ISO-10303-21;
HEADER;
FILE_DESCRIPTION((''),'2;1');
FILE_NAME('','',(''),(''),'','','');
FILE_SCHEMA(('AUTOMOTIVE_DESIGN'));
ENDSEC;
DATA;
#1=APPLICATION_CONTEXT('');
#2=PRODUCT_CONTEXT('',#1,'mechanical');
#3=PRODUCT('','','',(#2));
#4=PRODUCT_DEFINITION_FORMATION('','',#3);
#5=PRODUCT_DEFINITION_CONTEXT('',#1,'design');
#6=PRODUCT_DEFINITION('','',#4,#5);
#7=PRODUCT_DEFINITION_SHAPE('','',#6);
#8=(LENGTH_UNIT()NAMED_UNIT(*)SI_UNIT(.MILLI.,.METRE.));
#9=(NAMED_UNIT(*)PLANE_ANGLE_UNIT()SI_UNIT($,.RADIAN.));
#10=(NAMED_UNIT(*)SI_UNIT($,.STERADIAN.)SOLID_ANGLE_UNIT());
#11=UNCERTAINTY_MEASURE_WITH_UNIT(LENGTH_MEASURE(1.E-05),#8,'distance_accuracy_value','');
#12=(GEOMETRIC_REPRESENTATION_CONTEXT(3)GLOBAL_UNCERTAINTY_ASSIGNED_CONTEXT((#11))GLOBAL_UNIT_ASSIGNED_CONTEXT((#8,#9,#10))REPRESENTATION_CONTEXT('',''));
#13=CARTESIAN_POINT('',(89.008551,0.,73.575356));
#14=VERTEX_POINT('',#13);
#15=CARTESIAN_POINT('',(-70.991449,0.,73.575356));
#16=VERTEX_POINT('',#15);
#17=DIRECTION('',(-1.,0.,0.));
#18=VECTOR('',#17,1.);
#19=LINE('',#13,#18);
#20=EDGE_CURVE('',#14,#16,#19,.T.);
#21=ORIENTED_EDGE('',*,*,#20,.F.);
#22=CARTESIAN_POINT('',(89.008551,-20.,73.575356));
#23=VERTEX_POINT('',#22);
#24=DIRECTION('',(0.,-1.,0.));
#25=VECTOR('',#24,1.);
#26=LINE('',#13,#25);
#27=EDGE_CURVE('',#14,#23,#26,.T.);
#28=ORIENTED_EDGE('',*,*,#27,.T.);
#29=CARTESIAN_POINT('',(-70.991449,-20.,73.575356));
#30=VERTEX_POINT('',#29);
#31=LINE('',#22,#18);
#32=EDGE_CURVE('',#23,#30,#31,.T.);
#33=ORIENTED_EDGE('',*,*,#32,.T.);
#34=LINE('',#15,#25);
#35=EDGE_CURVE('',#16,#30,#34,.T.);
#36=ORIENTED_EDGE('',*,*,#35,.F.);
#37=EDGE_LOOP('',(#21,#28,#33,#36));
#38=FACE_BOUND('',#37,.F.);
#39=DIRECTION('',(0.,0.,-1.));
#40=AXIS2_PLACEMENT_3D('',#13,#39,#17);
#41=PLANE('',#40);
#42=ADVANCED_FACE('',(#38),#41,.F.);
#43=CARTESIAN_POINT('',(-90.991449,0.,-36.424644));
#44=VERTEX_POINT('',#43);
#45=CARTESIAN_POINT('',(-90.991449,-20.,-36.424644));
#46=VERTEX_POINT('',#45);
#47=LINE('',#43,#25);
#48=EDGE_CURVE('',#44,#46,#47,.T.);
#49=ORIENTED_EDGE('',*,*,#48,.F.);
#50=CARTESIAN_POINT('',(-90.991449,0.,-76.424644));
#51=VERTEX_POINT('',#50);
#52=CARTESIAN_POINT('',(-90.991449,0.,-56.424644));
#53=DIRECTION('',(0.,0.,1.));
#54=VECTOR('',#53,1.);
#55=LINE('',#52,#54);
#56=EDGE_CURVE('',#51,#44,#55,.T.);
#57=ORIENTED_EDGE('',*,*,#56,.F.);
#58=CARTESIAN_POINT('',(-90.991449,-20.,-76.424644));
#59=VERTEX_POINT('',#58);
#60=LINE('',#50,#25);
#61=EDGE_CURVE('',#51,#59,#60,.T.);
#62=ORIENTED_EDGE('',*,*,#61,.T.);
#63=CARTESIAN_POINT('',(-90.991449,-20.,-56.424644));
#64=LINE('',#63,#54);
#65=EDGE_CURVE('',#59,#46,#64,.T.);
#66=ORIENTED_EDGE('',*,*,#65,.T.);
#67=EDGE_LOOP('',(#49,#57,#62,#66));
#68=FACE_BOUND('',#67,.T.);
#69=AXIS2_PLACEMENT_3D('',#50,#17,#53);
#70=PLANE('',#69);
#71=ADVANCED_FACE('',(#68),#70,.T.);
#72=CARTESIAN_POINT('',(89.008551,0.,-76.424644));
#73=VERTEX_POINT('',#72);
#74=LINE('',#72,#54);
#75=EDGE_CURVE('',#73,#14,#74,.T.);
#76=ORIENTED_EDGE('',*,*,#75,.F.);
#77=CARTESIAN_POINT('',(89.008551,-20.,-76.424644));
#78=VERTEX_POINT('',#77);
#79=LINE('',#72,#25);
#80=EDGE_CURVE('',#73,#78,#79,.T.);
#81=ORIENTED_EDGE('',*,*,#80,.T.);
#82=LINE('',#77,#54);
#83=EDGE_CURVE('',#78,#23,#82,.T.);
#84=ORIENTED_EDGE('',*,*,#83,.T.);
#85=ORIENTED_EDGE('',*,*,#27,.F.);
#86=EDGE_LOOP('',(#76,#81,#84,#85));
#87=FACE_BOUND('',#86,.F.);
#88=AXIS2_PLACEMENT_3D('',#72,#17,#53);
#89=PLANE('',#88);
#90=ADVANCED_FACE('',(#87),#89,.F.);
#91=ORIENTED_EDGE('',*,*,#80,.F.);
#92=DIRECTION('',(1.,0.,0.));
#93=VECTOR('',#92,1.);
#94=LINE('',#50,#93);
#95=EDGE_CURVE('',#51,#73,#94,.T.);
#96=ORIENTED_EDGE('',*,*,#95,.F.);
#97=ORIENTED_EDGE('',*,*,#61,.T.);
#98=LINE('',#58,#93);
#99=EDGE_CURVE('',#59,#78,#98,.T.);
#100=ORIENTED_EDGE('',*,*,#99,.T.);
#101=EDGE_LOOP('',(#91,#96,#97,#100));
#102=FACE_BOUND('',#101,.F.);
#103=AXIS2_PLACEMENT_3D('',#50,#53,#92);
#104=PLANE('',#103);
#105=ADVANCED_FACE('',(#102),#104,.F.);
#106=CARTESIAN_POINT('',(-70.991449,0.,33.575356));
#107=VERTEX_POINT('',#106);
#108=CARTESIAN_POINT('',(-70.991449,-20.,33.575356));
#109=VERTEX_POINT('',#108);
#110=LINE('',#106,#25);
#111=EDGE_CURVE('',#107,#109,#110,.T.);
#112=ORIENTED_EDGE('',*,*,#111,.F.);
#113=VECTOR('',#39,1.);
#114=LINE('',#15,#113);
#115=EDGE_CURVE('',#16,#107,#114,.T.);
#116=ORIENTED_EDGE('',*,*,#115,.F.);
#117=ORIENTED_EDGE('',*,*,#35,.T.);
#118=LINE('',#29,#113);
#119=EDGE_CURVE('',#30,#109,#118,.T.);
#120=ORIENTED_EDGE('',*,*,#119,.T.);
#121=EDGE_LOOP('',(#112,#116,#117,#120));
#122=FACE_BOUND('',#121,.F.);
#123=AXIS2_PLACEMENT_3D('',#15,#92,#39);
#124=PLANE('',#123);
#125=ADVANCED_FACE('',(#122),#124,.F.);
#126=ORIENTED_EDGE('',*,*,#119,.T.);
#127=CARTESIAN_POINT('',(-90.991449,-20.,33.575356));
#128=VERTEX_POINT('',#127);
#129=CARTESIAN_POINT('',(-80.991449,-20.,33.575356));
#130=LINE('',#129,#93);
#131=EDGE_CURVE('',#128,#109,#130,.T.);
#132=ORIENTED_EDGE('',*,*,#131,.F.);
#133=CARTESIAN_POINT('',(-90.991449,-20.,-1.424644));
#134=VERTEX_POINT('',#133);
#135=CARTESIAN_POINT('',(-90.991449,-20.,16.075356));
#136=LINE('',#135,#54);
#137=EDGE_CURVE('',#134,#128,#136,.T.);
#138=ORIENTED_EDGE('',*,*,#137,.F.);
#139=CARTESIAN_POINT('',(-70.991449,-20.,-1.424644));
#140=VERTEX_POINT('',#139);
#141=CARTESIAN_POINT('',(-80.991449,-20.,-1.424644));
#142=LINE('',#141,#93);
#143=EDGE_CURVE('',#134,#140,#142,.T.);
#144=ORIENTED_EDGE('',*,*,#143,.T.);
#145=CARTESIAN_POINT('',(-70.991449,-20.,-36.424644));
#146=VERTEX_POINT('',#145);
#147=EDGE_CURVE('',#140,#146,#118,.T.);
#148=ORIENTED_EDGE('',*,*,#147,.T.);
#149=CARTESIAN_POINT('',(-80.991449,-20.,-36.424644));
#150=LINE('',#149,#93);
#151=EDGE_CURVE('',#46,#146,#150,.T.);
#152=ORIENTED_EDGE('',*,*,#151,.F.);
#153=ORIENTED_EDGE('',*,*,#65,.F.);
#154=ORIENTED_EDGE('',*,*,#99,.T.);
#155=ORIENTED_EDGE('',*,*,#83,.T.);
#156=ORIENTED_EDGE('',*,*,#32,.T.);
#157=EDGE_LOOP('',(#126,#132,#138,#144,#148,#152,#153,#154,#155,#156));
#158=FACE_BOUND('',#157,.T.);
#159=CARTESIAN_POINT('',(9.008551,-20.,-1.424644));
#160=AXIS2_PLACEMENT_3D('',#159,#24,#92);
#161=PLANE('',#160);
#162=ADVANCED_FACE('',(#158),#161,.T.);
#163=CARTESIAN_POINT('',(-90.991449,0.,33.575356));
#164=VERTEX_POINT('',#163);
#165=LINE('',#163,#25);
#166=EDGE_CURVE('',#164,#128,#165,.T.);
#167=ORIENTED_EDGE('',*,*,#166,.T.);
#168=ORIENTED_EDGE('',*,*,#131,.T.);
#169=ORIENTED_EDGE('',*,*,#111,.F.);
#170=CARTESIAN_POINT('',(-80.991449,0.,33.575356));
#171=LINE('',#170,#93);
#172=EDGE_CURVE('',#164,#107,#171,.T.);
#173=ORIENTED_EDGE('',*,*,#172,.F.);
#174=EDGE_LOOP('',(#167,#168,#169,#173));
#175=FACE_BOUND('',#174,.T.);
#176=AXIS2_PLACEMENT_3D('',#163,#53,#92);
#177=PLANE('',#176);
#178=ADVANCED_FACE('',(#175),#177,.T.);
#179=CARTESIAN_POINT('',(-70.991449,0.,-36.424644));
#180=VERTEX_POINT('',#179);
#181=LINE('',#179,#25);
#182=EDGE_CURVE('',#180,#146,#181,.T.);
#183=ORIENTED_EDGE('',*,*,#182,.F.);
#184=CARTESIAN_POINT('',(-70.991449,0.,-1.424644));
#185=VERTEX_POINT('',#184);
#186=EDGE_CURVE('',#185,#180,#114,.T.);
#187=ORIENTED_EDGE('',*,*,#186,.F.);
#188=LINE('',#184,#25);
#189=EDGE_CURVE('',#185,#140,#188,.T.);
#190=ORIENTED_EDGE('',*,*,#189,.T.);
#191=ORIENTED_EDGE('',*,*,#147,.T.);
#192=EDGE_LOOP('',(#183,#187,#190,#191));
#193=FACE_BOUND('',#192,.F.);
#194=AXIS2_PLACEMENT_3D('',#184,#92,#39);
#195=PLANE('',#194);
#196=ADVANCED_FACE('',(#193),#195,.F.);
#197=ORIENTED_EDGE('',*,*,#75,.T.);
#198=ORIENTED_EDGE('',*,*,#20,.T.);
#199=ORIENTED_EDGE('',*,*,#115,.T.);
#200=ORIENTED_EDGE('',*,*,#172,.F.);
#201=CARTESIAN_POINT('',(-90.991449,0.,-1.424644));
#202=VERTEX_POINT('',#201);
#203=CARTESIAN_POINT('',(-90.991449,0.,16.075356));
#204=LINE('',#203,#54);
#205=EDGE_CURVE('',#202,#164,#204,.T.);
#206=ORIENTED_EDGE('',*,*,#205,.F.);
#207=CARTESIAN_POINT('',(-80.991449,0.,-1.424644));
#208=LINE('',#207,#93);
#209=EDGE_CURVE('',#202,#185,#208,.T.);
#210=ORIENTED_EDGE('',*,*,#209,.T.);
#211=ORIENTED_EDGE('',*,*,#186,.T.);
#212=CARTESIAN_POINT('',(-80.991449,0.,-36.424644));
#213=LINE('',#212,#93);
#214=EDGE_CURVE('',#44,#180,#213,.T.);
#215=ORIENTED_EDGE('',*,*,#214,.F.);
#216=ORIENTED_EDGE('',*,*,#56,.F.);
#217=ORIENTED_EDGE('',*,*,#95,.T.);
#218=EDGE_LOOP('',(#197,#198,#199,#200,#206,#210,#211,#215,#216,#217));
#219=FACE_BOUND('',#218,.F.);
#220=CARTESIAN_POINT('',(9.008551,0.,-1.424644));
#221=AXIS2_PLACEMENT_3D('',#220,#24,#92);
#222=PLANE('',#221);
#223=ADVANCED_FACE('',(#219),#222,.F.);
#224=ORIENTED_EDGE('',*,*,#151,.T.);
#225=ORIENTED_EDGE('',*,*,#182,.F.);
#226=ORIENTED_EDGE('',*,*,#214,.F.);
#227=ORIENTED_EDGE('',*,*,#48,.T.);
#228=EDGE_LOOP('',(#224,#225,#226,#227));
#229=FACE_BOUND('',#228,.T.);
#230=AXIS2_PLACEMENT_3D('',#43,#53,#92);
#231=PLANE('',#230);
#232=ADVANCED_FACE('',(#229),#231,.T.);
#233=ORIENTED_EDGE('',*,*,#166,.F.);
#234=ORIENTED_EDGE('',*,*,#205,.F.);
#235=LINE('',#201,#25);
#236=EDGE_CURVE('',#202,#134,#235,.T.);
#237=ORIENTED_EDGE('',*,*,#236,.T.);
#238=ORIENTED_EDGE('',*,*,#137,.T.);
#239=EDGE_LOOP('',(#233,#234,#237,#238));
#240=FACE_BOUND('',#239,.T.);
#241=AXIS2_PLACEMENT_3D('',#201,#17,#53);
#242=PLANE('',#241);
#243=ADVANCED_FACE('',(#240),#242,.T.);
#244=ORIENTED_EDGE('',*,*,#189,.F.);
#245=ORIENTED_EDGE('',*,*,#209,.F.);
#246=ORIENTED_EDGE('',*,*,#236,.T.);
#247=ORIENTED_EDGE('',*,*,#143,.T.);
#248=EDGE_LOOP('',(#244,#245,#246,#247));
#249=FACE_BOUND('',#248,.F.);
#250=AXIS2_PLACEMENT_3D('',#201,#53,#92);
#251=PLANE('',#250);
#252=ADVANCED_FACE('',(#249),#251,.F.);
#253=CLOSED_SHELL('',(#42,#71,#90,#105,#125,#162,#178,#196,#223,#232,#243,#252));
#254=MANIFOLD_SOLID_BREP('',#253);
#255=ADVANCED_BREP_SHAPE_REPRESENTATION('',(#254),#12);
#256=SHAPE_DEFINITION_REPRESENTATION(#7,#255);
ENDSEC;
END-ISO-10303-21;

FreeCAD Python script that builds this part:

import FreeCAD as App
import Part
import Sketcher

V = App.Vector

doc = App.newDocument("Part")
params = doc.addObject("Spreadsheet::Sheet", "Params")
for row, (alias, value) in enumerate([
    ("sketch1_width", "160 mm"),
    ("sketch1_width2", "20 mm"),
    ("sketch1_height", "40 mm"),
    ("sketch1_height2", "35 mm"),
    ("pad1_length", "20 mm"),
], start=1):
    params.set(f"A{row}", alias)
    params.set(f"B{row}", "=" + value)
    params.setAlias(f"B{row}", alias)

body = doc.addObject("PartDesign::Body", "Body")

sketch1 = doc.addObject("Sketcher::SketchObject", "Sketch")
body.addObject(sketch1)
sketch1.AttachmentSupport = (doc.XZ_Plane, [""])
sketch1.MapMode = "FlatFace"
sketch1.addGeometry(Part.LineSegment(V(89, 74, 0), V(-71, 74, 0)), False)
sketch1.addGeometry(Part.LineSegment(V(-71, 74, 0), V(-71, 34, 0)), False)
sketch1.addGeometry(Part.LineSegment(V(-71, 34, 0), V(-91, 34, 0)), False)
sketch1.addGeometry(Part.LineSegment(V(-91, 34, 0), V(-91, -1, 0)), False)
sketch1.addGeometry(Part.LineSegment(V(-91, -1, 0), V(-71, -1, 0)), False)
sketch1.addGeometry(Part.LineSegment(V(-71, -1, 0), V(-71, -36, 0)), False)
sketch1.addGeometry(Part.LineSegment(V(-71, -36, 0), V(-91, -36, 0)), False)
sketch1.addGeometry(Part.LineSegment(V(-91, -36, 0), V(-91, -76, 0)), False)
sketch1.addGeometry(Part.LineSegment(V(-91, -76, 0), V(89, -76, 0)), False)
sketch1.addGeometry(Part.LineSegment(V(89, -76, 0), V(89, 74, 0)), False)
sketch1.addConstraint(Sketcher.Constraint("Coincident", 0, 2, 1, 1))
sketch1.addConstraint(Sketcher.Constraint("Coincident", 1, 2, 2, 1))
sketch1.addConstraint(Sketcher.Constraint("Coincident", 2, 2, 3, 1))
sketch1.addConstraint(Sketcher.Constraint("Coincident", 3, 2, 4, 1))
sketch1.addConstraint(Sketcher.Constraint("Coincident", 4, 2, 5, 1))
sketch1.addConstraint(Sketcher.Constraint("Coincident", 5, 2, 6, 1))
sketch1.addConstraint(Sketcher.Constraint("Coincident", 6, 2, 7, 1))
sketch1.addConstraint(Sketcher.Constraint("Coincident", 7, 2, 8, 1))
sketch1.addConstraint(Sketcher.Constraint("Coincident", 8, 2, 9, 1))
sketch1.addConstraint(Sketcher.Constraint("Coincident", 9, 2, 0, 1))
sketch1.addConstraint(Sketcher.Constraint("Horizontal", 0))
sketch1.addConstraint(Sketcher.Constraint("Vertical", 1))
sketch1.addConstraint(Sketcher.Constraint("Horizontal", 2))
sketch1.addConstraint(Sketcher.Constraint("Vertical", 3))
sketch1.addConstraint(Sketcher.Constraint("Horizontal", 4))
sketch1.addConstraint(Sketcher.Constraint("Vertical", 5))
sketch1.addConstraint(Sketcher.Constraint("Horizontal", 6))
sketch1.addConstraint(Sketcher.Constraint("Vertical", 7))
sketch1.addConstraint(Sketcher.Constraint("Horizontal", 8))
sketch1.addConstraint(Sketcher.Constraint("Vertical", 9))
sketch1.addConstraint(Sketcher.Constraint("Vertical", 1, 2, 4, 2))
sketch1.addConstraint(Sketcher.Constraint("Vertical", 3, 2, 6, 2))
sketch1.addConstraint(Sketcher.Constraint("Equal", 3, 5))
sketch1.addConstraint(Sketcher.Constraint("Equal", 1, 7))
sketch1.addConstraint(Sketcher.Constraint("DistanceX", 0, 2, 0, 1, 160.0))
sketch1.addConstraint(Sketcher.Constraint("DistanceX", 2, 2, 2, 1, 20.0))
sketch1.addConstraint(Sketcher.Constraint("DistanceY", 1, 2, 1, 1, 40.0))
sketch1.addConstraint(Sketcher.Constraint("DistanceY", 3, 2, 3, 1, 35.0))
sketch1.addConstraint(Sketcher.Constraint("DistanceX", 0, 2, -1, 1, 70.991449))
sketch1.addConstraint(Sketcher.Constraint("DistanceY", -1, 1, 0, 2, 73.575356))
sketch1.setExpression("Constraints[24]", "Params.sketch1_width")
sketch1.setExpression("Constraints[25]", "Params.sketch1_width2")
sketch1.setExpression("Constraints[26]", "Params.sketch1_height")
sketch1.setExpression("Constraints[27]", "Params.sketch1_height2")
pad1 = doc.addObject("PartDesign::Pad", "Pad")
body.addObject(pad1)
pad1.Profile = sketch1
pad1.setExpression("Length", "Params.pad1_length")

doc.recompute()
